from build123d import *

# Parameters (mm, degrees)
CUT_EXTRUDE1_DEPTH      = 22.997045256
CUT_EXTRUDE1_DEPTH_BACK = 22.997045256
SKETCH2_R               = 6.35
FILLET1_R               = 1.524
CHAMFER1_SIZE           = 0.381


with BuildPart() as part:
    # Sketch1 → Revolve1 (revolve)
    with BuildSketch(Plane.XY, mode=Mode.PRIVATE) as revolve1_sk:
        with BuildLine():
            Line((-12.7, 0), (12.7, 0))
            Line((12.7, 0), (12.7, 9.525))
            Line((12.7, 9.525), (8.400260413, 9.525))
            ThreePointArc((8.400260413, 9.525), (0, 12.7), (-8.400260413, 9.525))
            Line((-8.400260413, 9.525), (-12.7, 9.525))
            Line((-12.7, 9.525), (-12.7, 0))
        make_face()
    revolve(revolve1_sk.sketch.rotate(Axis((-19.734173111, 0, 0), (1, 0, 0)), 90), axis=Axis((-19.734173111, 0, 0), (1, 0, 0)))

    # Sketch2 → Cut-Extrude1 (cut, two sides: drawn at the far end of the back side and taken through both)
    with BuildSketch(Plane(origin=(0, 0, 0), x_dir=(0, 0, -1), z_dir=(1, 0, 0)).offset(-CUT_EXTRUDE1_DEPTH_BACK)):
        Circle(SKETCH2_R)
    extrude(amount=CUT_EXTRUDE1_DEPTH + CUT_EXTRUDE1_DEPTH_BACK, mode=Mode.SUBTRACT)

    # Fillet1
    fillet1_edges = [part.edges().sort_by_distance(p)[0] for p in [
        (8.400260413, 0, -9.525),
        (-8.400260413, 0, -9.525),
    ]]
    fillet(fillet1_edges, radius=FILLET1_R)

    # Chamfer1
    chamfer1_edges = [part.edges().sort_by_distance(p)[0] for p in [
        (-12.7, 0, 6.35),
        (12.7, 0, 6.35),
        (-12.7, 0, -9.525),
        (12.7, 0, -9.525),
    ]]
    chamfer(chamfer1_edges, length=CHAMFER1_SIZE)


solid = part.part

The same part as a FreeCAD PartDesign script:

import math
import FreeCAD as App
import Part
import Sketcher
from FreeCAD import Vector
Q = App.Units.Quantity


def edges_at(feature, points):
    """Names of the edges that pass closest to the given points."""
    edges = feature.Shape.Edges
    near = lambda p: min(range(len(edges)), key=lambda i: edges[i].distToShape(Part.Vertex(*p))[0])
    return sorted({f"Edge{near(p) + 1}" for p in points})

doc = App.newDocument("Part")
body = doc.addObject("PartDesign::Body", "Body")

sketch1 = body.newObject("Sketcher::SketchObject", "Sketch")
sketch1.AttachmentSupport = (doc.getObject("XY_Plane"), [""])
sketch1.MapMode = "FlatFace"
sketch1.addGeometry([
    Part.LineSegment(Vector(-12.7, 0, 0), Vector(12.7, 0, 0)),
    Part.LineSegment(Vector(12.7, 0, 0), Vector(12.7, 9.5, 0)),
    Part.LineSegment(Vector(12.7, 9.5, 0), Vector(8.4, 9.5, 0)),
    Part.ArcOfCircle(Part.Circle(Vector(0, 0, 0), Vector(0, 0, 1), 12.7), math.radians(49), math.radians(131)),
    Part.LineSegment(Vector(-8.4, 9.5, 0), Vector(-12.7, 9.5, 0)),
    Part.LineSegment(Vector(-12.7, 9.5, 0), Vector(-12.7, 0, 0)),
], False)
sketch1.addConstraint([
    Sketcher.Constraint("Coincident", 0, 2, 1, 1),
    Sketcher.Constraint("Coincident", 1, 2, 2, 1),
    Sketcher.Constraint("Coincident", 2, 2, 3, 1),
    Sketcher.Constraint("Coincident", 3, 2, 4, 1),
    Sketcher.Constraint("Coincident", 4, 2, 5, 1),
    Sketcher.Constraint("Coincident", 5, 2, 0, 1),
    Sketcher.Constraint("Horizontal", 0),
    Sketcher.Constraint("Vertical", 1),
    Sketcher.Constraint("Horizontal", 2),
    Sketcher.Constraint("Horizontal", 4),
    Sketcher.Constraint("Vertical", 5),
    Sketcher.Constraint("Coincident", 3, 3, -1, 1),
    Sketcher.Constraint("Symmetric", 0, 2, 5, 2, -1, 1),
    Sketcher.Constraint("Horizontal", 2, 2, 3, 2),
    Sketcher.Constraint("Radius", 3, Q("0.5 in")),
    Sketcher.Constraint("DistanceX", 0, 1, 0, 2, Q("1 in")),
    Sketcher.Constraint("DistanceY", 1, 1, 1, 2, Q("0.375 in")),
])
revolution = body.newObject("PartDesign::Revolution", "Revolution")
revolution.Profile = sketch1
revolution.ReferenceAxis = (sketch1, ["H_Axis"])
revolution.Angle = 360

sketch2 = body.newObject("Sketcher::SketchObject", "Sketch001")
sketch2.AttachmentSupport = (doc.getObject("YZ_Plane"), [""])
sketch2.MapMode = "FlatFace"
sketch2.addGeometry(Part.Circle(Vector(0, 0, 0), Vector(0, 0, 1), 6), False)
sketch2.addConstraint([
    Sketcher.Constraint("Coincident", 0, 3, -1, 1),
    Sketcher.Constraint("Diameter", 0, Q("0.5 in")),
])
pocket1 = body.newObject("PartDesign::Pocket", "Pocket")
pocket1.Profile = sketch2
pocket1.Type = "ThroughAll"
pocket1.Midplane = True
doc.recompute()

fillet = body.newObject("PartDesign::Fillet", "Fillet")
fillet.Base = (pocket1, edges_at(pocket1, [(8.4, 0, -9.525), (-8.4, 0, -9.525)]))
fillet.Radius = Q("0.06 in")
doc.recompute()

chamfer = body.newObject("PartDesign::Chamfer", "Chamfer")
chamfer.Base = (fillet, edges_at(fillet, [
    (-12.7, 0, 6.35),
    (12.7, 0, 6.35),
    (-12.7, 0, -9.525),
    (12.7, 0, -9.525),
]))
chamfer.Size = Q("0.015 in")

doc.recompute()
